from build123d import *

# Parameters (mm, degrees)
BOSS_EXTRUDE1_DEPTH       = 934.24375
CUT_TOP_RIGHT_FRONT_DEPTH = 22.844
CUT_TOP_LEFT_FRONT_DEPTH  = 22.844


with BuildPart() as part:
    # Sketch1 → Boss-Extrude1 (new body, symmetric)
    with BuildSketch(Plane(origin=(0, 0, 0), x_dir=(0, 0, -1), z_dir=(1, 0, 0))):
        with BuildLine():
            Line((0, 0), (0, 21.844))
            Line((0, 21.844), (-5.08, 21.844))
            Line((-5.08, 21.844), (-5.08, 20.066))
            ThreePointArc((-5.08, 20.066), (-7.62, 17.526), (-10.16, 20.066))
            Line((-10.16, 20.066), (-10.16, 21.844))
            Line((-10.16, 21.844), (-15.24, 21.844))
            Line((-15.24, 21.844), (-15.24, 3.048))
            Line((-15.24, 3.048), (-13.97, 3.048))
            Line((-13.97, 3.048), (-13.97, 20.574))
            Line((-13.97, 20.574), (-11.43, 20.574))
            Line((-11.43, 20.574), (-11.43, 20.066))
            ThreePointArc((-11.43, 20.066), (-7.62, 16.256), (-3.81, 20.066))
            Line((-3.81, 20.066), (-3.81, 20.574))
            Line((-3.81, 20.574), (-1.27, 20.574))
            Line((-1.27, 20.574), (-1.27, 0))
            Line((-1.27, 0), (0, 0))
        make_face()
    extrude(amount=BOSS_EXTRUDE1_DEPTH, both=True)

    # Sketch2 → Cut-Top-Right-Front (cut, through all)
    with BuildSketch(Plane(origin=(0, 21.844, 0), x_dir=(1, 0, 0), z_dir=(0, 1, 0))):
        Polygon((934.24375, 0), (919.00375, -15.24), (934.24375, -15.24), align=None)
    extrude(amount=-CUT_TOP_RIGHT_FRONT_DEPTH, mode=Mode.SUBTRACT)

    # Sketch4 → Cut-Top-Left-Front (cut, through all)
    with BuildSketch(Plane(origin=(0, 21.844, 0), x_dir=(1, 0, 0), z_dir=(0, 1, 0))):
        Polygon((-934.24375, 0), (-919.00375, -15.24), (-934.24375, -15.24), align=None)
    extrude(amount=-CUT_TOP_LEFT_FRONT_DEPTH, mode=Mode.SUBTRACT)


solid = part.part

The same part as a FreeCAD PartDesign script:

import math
import FreeCAD as App
import Part
import Sketcher
Q = App.Units.Quantity


def add_polygon(sketch, points):
    """Adds a closed chain of lines whose ends are joined by coincident constraints."""
    first, n = sketch.GeometryCount, len(points)
    for a, b in zip(points, points[1:] + points[:1]):
        sketch.addGeometry(Part.LineSegment(App.Vector(*a, 0), App.Vector(*b, 0)), False)
    for i in range(n):
        sketch.addConstraint(Sketcher.Constraint("Coincident", first + i, 2, first + (i + 1) % n, 1))

doc = App.newDocument("Part")
body = doc.addObject("PartDesign::Body", "Body")

sketch1 = body.newObject("Sketcher::SketchObject", "Sketch")
sketch1.AttachmentSupport = (doc.getObject("YZ_Plane"), [""])
sketch1.MapMode = "FlatFace"
sketch1.addGeometry(Part.LineSegment(App.Vector(0, 0, 0), App.Vector(21.8, 0, 0)), False)
sketch1.addGeometry(Part.LineSegment(App.Vector(21.8, 0, 0), App.Vector(21.8, 5.1, 0)), False)
sketch1.addGeometry(Part.LineSegment(App.Vector(21.8, 5.1, 0), App.Vector(20.1, 5.1, 0)), False)
sketch1.addGeometry(Part.ArcOfCircle(Part.Circle(App.Vector(20.1, 7.6, 0), App.Vector(0, 0, 1), 2.5), math.radians(90), math.radians(270)), False)
sketch1.addGeometry(Part.LineSegment(App.Vector(20.1, 10.2, 0), App.Vector(21.8, 10.2, 0)), False)
sketch1.addGeometry(Part.LineSegment(App.Vector(21.8, 10.2, 0), App.Vector(21.8, 15.2, 0)), False)
sketch1.addGeometry(Part.LineSegment(App.Vector(21.8, 15.2, 0), App.Vector(3, 15.2, 0)), False)
sketch1.addGeometry(Part.LineSegment(App.Vector(3, 15.2, 0), App.Vector(3, 14, 0)), False)
sketch1.addGeometry(Part.LineSegment(App.Vector(3, 14, 0), App.Vector(20.6, 14, 0)), False)
sketch1.addGeometry(Part.LineSegment(App.Vector(20.6, 14, 0), App.Vector(20.6, 11.4, 0)), False)
sketch1.addGeometry(Part.LineSegment(App.Vector(20.6, 11.4, 0), App.Vector(20.1, 11.4, 0)), False)
sketch1.addGeometry(Part.ArcOfCircle(Part.Circle(App.Vector(20.1, 7.6, 0), App.Vector(0, 0, 1), 3.8), math.radians(90), math.radians(270)), False)
sketch1.addGeometry(Part.LineSegment(App.Vector(20.1, 3.8, 0), App.Vector(20.6, 3.8, 0)), False)
sketch1.addGeometry(Part.LineSegment(App.Vector(20.6, 3.8, 0), App.Vector(20.6, 1.3, 0)), False)
sketch1.addGeometry(Part.LineSegment(App.Vector(20.6, 1.3, 0), App.Vector(0, 1.3, 0)), False)
sketch1.addGeometry(Part.LineSegment(App.Vector(0, 1.3, 0), App.Vector(0, 0, 0)), False)
sketch1.addConstraint(Sketcher.Constraint("Coincident", 0, 2, 1, 1))
sketch1.addConstraint(Sketcher.Constraint("Coincident", 1, 2, 2, 1))
sketch1.addConstraint(Sketcher.Constraint("Tangent", 2, 2, 3, 2))
sketch1.addConstraint(Sketcher.Constraint("Tangent", 3, 1, 4, 1))
sketch1.addConstraint(Sketcher.Constraint("Coincident", 4, 2, 5, 1))
sketch1.addConstraint(Sketcher.Constraint("Coincident", 5, 2, 6, 1))
sketch1.addConstraint(Sketcher.Constraint("Coincident", 6, 2, 7, 1))
sketch1.addConstraint(Sketcher.Constraint("Coincident", 7, 2, 8, 1))
sketch1.addConstraint(Sketcher.Constraint("Coincident", 8, 2, 9, 1))
sketch1.addConstraint(Sketcher.Constraint("Coincident", 9, 2, 10, 1))
sketch1.addConstraint(Sketcher.Constraint("Tangent", 10, 2, 11, 1))
sketch1.addConstraint(Sketcher.Constraint("Tangent", 11, 2, 12, 1))
sketch1.addConstraint(Sketcher.Constraint("Coincident", 12, 2, 13, 1))
sketch1.addConstraint(Sketcher.Constraint("Coincident", 13, 2, 14, 1))
sketch1.addConstraint(Sketcher.Constraint("Coincident", 14, 2, 15, 1))
sketch1.addConstraint(Sketcher.Constraint("Coincident", 15, 2, 0, 1))
sketch1.addConstraint(Sketcher.Constraint("Horizontal", 0))
sketch1.addConstraint(Sketcher.Constraint("Vertical", 1))
sketch1.addConstraint(Sketcher.Constraint("Horizontal", 2))
sketch1.addConstraint(Sketcher.Constraint("Horizontal", 4))
sketch1.addConstraint(Sketcher.Constraint("Vertical", 5))
sketch1.addConstraint(Sketcher.Constraint("Horizontal", 6))
sketch1.addConstraint(Sketcher.Constraint("Vertical", 7))
sketch1.addConstraint(Sketcher.Constraint("Horizontal", 8))
sketch1.addConstraint(Sketcher.Constraint("Vertical", 9))
sketch1.addConstraint(Sketcher.Constraint("Horizontal", 10))
sketch1.addConstraint(Sketcher.Constraint("Horizontal", 12))
sketch1.addConstraint(Sketcher.Constraint("Vertical", 13))
sketch1.addConstraint(Sketcher.Constraint("Horizontal", 14))
sketch1.addConstraint(Sketcher.Constraint("Vertical", 15))
sketch1.addConstraint(Sketcher.Constraint("Coincident", 15, 2, -1, 1))
sketch1.addConstraint(Sketcher.Constraint("Coincident", 11, 3, 3, 3))
sketch1.addConstraint(Sketcher.Constraint("Vertical", 1, 2, 4, 2))
sketch1.addConstraint(Sketcher.Constraint("Vertical", 9, 2, 12, 2))
sketch1.addConstraint(Sketcher.Constraint("Equal", 1, 5))
sketch1.addConstraint(Sketcher.Constraint("Equal", 9, 13))
sketch1.addConstraint(Sketcher.Constraint("Radius", 3, Q("0.1 in")))
sketch1.addConstraint(Sketcher.Constraint("Radius", 11, Q("0.15 in")))
sketch1.addConstraint(Sketcher.Constraint("DistanceY", 1, 1, 1, 2, Q("0.2 in")))
sketch1.addConstraint(Sketcher.Constraint("DistanceY", 9, 2, 9, 1, Q("0.1 in")))
sketch1.addConstraint(Sketcher.Constraint("DistanceX", 0, 1, 0, 2, Q("0.86 in")))
sketch1.addConstraint(Sketcher.Constraint("DistanceX", 2, 2, 2, 1, Q("0.07 in")))
sketch1.addConstraint(Sketcher.Constraint("DistanceX", 6, 2, 6, 1, Q("0.74 in")))
sketch1.addConstraint(Sketcher.Constraint("DistanceX", 8, 1, 8, 2, Q("0.69 in")))
pad1 = body.newObject("PartDesign::Pad", "Pad")
pad1.Profile = sketch1
pad1.Length = Q("73.5625 in")
pad1.Midplane = True

sketch2 = body.newObject("Sketcher::SketchObject", "Sketch001")
sketch2.AttachmentSupport = (doc.getObject("XZ_Plane"), [""])
sketch2.MapMode = "FlatFace"
sketch2.AttachmentOffset = App.Placement(App.Vector(0, 0, -0.86 * 25.4), App.Rotation())
add_polygon(sketch2, [(934, 0), (919, 15), (934, 15)])
sketch2.addConstraint(Sketcher.Constraint("Horizontal", 1))
sketch2.addConstraint(Sketcher.Constraint("Vertical", 2))
sketch2.addConstraint(Sketcher.Constraint("PointOnObject", 2, 2, -1))
sketch2.addConstraint(Sketcher.Constraint("Equal", 1, 2))
sketch2.addConstraint(Sketcher.Constraint("DistanceX", 1, 1, 1, 2, Q("0.6 in")))
sketch2.addConstraint(Sketcher.Constraint("DistanceX", -1, 1, 1, 2, Q("36.78125 in")))
pocket1 = body.newObject("PartDesign::Pocket", "Pocket")
pocket1.Profile = sketch2
pocket1.Type = "ThroughAll"
pocket1.Reversed = True

sketch3 = body.newObject("Sketcher::SketchObject", "Sketch002")
sketch3.AttachmentSupport = (doc.getObject("XZ_Plane"), [""])
sketch3.MapMode = "FlatFace"
sketch3.AttachmentOffset = App.Placement(App.Vector(0, 0, -0.86 * 25.4), App.Rotation())
add_polygon(sketch3, [(-919, 15), (-934, 0), (-934, 15)])
sketch3.addConstraint(Sketcher.Constraint("Vertical", 1))
sketch3.addConstraint(Sketcher.Constraint("Horizontal", 2))
sketch3.addConstraint(Sketcher.Constraint("PointOnObject", 0, 2, -1))
sketch3.addConstraint(Sketcher.Constraint("Equal", 2, 1))
sketch3.addConstraint(Sketcher.Constraint("DistanceX", 2, 1, 2, 2, Q("0.6 in")))
sketch3.addConstraint(Sketcher.Constraint("DistanceX", 0, 2, -1, 1, Q("36.78125 in")))
pocket2 = body.newObject("PartDesign::Pocket", "Pocket001")
pocket2.Profile = sketch3
pocket2.Type = "ThroughAll"
pocket2.Reversed = True

doc.recompute()
